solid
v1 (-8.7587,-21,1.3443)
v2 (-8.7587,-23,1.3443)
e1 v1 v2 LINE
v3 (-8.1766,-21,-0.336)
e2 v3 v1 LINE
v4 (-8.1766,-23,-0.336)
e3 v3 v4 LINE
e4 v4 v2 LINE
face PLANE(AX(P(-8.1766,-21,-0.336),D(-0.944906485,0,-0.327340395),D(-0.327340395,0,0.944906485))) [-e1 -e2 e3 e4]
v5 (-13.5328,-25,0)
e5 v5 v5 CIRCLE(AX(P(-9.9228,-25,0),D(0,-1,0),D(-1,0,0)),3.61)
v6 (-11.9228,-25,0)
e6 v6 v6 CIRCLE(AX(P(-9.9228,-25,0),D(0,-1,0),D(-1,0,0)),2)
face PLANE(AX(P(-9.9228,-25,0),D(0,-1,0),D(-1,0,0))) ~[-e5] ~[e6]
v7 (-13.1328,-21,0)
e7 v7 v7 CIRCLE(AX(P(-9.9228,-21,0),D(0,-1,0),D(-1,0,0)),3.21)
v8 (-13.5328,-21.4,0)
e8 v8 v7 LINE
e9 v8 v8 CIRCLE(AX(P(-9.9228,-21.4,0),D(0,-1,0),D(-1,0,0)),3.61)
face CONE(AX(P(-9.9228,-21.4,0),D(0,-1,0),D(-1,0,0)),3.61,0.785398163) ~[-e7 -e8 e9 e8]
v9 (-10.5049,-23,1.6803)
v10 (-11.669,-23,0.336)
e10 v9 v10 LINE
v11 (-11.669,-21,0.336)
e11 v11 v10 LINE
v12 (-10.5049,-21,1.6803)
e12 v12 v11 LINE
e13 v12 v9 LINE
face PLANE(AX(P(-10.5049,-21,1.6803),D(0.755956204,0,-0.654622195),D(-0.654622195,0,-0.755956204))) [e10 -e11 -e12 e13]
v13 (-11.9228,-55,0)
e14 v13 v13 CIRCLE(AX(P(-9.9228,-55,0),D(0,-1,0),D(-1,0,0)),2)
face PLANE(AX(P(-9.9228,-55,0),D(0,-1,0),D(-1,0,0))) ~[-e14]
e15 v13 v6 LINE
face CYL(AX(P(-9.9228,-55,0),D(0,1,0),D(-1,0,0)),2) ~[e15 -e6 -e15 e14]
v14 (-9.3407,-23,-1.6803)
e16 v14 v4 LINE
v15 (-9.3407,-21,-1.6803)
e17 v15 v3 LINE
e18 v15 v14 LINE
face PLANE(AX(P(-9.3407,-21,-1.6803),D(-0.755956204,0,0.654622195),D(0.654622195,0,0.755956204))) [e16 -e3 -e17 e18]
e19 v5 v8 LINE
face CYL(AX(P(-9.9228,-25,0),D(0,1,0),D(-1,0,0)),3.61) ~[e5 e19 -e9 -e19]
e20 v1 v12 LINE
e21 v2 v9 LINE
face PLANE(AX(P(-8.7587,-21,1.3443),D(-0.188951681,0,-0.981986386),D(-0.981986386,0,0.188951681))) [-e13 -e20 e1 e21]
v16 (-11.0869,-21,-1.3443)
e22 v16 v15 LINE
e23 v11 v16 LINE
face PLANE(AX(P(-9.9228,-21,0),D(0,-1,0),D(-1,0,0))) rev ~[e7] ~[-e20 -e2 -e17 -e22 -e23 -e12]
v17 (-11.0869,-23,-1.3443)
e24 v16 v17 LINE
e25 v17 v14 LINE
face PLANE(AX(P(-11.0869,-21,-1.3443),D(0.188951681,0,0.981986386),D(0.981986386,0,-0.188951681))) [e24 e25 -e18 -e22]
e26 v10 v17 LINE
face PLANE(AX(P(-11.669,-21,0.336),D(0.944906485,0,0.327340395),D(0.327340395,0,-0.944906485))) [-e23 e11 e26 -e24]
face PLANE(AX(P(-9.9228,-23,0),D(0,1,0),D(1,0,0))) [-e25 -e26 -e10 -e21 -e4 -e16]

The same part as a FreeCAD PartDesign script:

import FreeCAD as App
import Part
import Sketcher

V = App.Vector
Q = App.Units.Quantity


def edges_at(feature, points):
    """Names of the edges that pass closest to the given points."""
    edges = feature.Shape.Edges
    near = lambda p: min(range(len(edges)), key=lambda i: edges[i].distToShape(Part.Vertex(*p))[0])
    return sorted({f"Edge{near(p) + 1}" for p in points})


def add_polygon(sketch, points):
    """Adds a closed chain of lines whose ends are joined by coincident constraints."""
    first, n = sketch.GeometryCount, len(points)
    for a, b in zip(points, points[1:] + points[:1]):
        sketch.addGeometry(Part.LineSegment(App.Vector(*a, 0), App.Vector(*b, 0)), False)
    for i in range(n):
        sketch.addConstraint(Sketcher.Constraint("Coincident", first + i, 2, first + (i + 1) % n, 1))

doc = App.newDocument("Part")
body = doc.addObject("PartDesign::Body", "Body")

# Sketch on XY plane
sketch1 = body.newObject("Sketcher::SketchObject", "Sketch")
sketch1.AttachmentSupport = (doc.getObject("XY_Plane"), [""])
sketch1.MapMode = "FlatFace"
add_polygon(sketch1, [(-9.9, -55), (-9.9, -21), (-13.5, -21), (-13.5, -25), (-11.9, -25), (-11.9, -55)])  # lines 0-5
sketch1.addGeometry(Part.LineSegment(V(-9.9, -21, 0), V(-9.9, -55, 0)), True)  # axis
sketch1.addConstraint(Sketcher.Constraint("Vertical", 0))
sketch1.addConstraint(Sketcher.Constraint("Horizontal", 1))
sketch1.addConstraint(Sketcher.Constraint("Vertical", 2))
sketch1.addConstraint(Sketcher.Constraint("Horizontal", 3))
sketch1.addConstraint(Sketcher.Constraint("Vertical", 4))
sketch1.addConstraint(Sketcher.Constraint("Horizontal", 5))
sketch1.addConstraint(Sketcher.Constraint("Vertical", 6))
sketch1.addConstraint(Sketcher.Constraint("Coincident", 6, 1, 0, 2))
sketch1.addConstraint(Sketcher.Constraint("Horizontal", 4, 2, 6, 2))
sketch1.addConstraint(Sketcher.Constraint("DistanceX", 5, 1, 5, 2, Q("2 mm")))
sketch1.addConstraint(Sketcher.Constraint("DistanceY", 2, 2, 2, 1, Q("4 mm")))
sketch1.addConstraint(Sketcher.Constraint("DistanceY", 4, 2, 4, 1, Q("30 mm")))
sketch1.addConstraint(Sketcher.Constraint("DistanceX", 1, 2, 1, 1, Q("3.61 mm")))
sketch1.addConstraint(Sketcher.Constraint("DistanceY", 0, 2, -1, 1, Q("21 mm")))
sketch1.addConstraint(Sketcher.Constraint("DistanceX", 0, 2, -1, 1, Q("9.9228 mm")))
revolution = body.newObject("PartDesign::Revolution", "Revolution")
revolution.Profile = sketch1
revolution.ReferenceAxis = (sketch1, ["Axis0"])
revolution.Angle = 360
doc.recompute()

chamfer = body.newObject("PartDesign::Chamfer", "Chamfer")
chamfer.Base = (revolution, edges_at(revolution, [(-6.313, -21, 0)]))
chamfer.Size = 0.4

# Sketch on XZ plane
sketch2 = body.newObject("Sketcher::SketchObject", "Sketch001")
sketch2.AttachmentSupport = (doc.getObject("XZ_Plane"), [""])
sketch2.MapMode = "FlatFace"
sketch2.AttachmentOffset = App.Placement(V(0, 0, 21), App.Rotation())
add_polygon(sketch2, [(-10.5, 1.7), (-8.8, 1.3), (-8.2, -0.3), (-9.3, -1.7), (-11.1, -1.3), (-11.7, 0.3)])  # lines 0-5
sketch2.addConstraint(Sketcher.Constraint("Parallel", 0, 3))
sketch2.addConstraint(Sketcher.Constraint("Parallel", 1, 4))
sketch2.addConstraint(Sketcher.Constraint("Parallel", 2, 5))
sketch2.addConstraint(Sketcher.Constraint("Equal", 0, 1))
sketch2.addConstraint(Sketcher.Constraint("Equal", 1, 2))
sketch2.addConstraint(Sketcher.Constraint("Equal", 2, 3))
sketch2.addConstraint(Sketcher.Constraint("Angle", 2, Q("-130.891 deg")))
sketch2.addConstraint(Sketcher.Constraint("DistanceY", 1, 2, -1, 1, Q("0.336 mm")))
sketch2.addConstraint(Sketcher.Constraint("DistanceX", 3, 2, -1, 1, Q("11.087 mm")))
sketch2.addConstraint(Sketcher.Constraint("DistanceX", 4, 2, -1, 1, Q("11.669 mm")))
sketch2.addConstraint(Sketcher.Constraint("DistanceY", -1, 1, 4, 2, Q("0.336 mm")))
sketch2.addConstraint(Sketcher.Constraint("DistanceX", 5, 2, -1, 1, Q("10.505 mm")))
pocket1 = body.newObject("PartDesign::Pocket", "Pocket")
pocket1.Profile = sketch2
pocket1.Length = 2
pocket1.Reversed = True

doc.recompute()
